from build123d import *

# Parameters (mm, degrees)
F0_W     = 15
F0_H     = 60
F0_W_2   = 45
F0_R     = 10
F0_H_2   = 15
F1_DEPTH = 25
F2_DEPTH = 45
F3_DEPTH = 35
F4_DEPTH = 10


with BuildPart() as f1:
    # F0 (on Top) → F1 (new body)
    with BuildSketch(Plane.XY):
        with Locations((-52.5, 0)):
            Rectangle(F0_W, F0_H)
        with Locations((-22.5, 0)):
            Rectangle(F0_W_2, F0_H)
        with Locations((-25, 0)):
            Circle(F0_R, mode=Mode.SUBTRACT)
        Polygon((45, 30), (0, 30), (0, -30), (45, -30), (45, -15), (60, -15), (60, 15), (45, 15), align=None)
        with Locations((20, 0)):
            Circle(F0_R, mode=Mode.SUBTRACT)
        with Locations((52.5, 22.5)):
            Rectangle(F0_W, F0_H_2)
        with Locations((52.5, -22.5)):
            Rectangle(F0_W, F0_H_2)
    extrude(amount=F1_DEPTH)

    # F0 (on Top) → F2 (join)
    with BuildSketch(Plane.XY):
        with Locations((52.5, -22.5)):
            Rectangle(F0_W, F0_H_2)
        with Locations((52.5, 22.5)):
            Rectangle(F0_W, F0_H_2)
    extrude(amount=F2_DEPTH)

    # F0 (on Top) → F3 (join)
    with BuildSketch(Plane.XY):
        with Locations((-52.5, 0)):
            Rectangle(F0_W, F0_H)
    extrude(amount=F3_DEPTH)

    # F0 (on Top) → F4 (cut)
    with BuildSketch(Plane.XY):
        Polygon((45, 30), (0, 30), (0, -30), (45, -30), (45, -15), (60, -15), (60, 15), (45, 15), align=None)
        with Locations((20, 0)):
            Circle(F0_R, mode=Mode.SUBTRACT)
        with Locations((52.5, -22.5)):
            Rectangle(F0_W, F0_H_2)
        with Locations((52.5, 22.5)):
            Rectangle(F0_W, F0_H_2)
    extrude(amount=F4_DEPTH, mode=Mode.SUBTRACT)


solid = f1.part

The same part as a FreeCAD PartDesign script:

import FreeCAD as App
import Part
import Sketcher


def add_polygon(sketch, points):
    """Adds a closed chain of lines whose ends are joined by coincident constraints."""
    first, n = sketch.GeometryCount, len(points)
    for a, b in zip(points, points[1:] + points[:1]):
        sketch.addGeometry(Part.LineSegment(App.Vector(*a, 0), App.Vector(*b, 0)), False)
    for i in range(n):
        sketch.addConstraint(Sketcher.Constraint("Coincident", first + i, 2, first + (i + 1) % n, 1))

doc = App.newDocument("Part")
params = doc.addObject("Spreadsheet::Sheet", "Params")
for row, (alias, value) in enumerate([
    ("sketch1_diameter", "20 mm"),
    ("sketch1_width", "120 mm"),
    ("sketch1_height", "60 mm"),
    ("pad1_length", "25 mm"),
    ("sketch2_width", "15 mm"),
    ("pad2_length", "45 mm"),
    ("sketch3_width", "15 mm"),
    ("sketch3_height", "60 mm"),
    ("pad3_length", "35 mm"),
    ("sketch4_diameter", "20 mm"),
    ("sketch4_width", "60 mm"),
    ("pocket1_length", "10 mm"),
], start=1):
    params.set(f"A{row}", alias)
    params.set(f"B{row}", "=" + value)
    params.setAlias(f"B{row}", alias)

body = doc.addObject("PartDesign::Body", "Body")

# Sketch on XY plane
sketch1 = body.newObject("Sketcher::SketchObject", "Sketch")
sketch1.AttachmentSupport = (doc.getObject("XY_Plane"), [""])
sketch1.MapMode = "FlatFace"
add_polygon(sketch1, [(-60, 30), (-60, -30), (60, -30), (60, 30)])  # lines 0-3
sketch1.addGeometry(Part.Circle(App.Vector(-25, 0, 0), App.Vector(0, 0, 1), 10), False)  # 4
sketch1.addGeometry(Part.Circle(App.Vector(20, 0, 0), App.Vector(0, 0, 1), 10), False)  # 5
sketch1.addConstraint(Sketcher.Constraint("Vertical", 0))
sketch1.addConstraint(Sketcher.Constraint("Horizontal", 1))
sketch1.addConstraint(Sketcher.Constraint("Vertical", 2))
sketch1.addConstraint(Sketcher.Constraint("Horizontal", 3))
sketch1.addConstraint(Sketcher.Constraint("Equal", 4, 5))
sketch1.addConstraint(Sketcher.Constraint("Symmetric", 0, 2, 2, 2, -1, 1))
sketch1.addConstraint(Sketcher.Constraint("PointOnObject", 4, 3, -1))
sketch1.addConstraint(Sketcher.Constraint("PointOnObject", 5, 3, -1))
sketch1.addConstraint(Sketcher.Constraint("Diameter", 4, 20.0))
sketch1.addConstraint(Sketcher.Constraint("DistanceX", 1, 1, 1, 2, 120.0))
sketch1.addConstraint(Sketcher.Constraint("DistanceY", 0, 2, 0, 1, 60.0))
sketch1.addConstraint(Sketcher.Constraint("DistanceX", 4, 3, -1, 1, 25.0))
sketch1.addConstraint(Sketcher.Constraint("DistanceX", -1, 1, 5, 3, 20.0))
sketch1.setExpression("Constraints[12]", "Params.sketch1_diameter")
sketch1.setExpression("Constraints[13]", "Params.sketch1_width")
sketch1.setExpression("Constraints[14]", "Params.sketch1_height")
pad1 = body.newObject("PartDesign::Pad", "Pad")
pad1.Profile = sketch1
pad1.setExpression("Length", "Params.pad1_length")

# Sketch on XY plane
sketch2 = body.newObject("Sketcher::SketchObject", "Sketch001")
sketch2.AttachmentSupport = (doc.getObject("XY_Plane"), [""])
sketch2.MapMode = "FlatFace"
add_polygon(sketch2, [(45, -15), (45, -30), (60, -30), (60, -15)])  # lines 0-3
add_polygon(sketch2, [(45, 30), (45, 15), (60, 15), (60, 30)])  # lines 4-7
sketch2.addConstraint(Sketcher.Constraint("Vertical", 0))
sketch2.addConstraint(Sketcher.Constraint("Horizontal", 1))
sketch2.addConstraint(Sketcher.Constraint("Vertical", 2))
sketch2.addConstraint(Sketcher.Constraint("Horizontal", 3))
sketch2.addConstraint(Sketcher.Constraint("Vertical", 4))
sketch2.addConstraint(Sketcher.Constraint("Horizontal", 5))
sketch2.addConstraint(Sketcher.Constraint("Vertical", 6))
sketch2.addConstraint(Sketcher.Constraint("Horizontal", 7))
sketch2.addConstraint(Sketcher.Constraint("Symmetric", 3, 2, 4, 2, -1))
sketch2.addConstraint(Sketcher.Constraint("Symmetric", 1, 2, 6, 2, -1))
sketch2.addConstraint(Sketcher.Constraint("Equal", 7, 0))
sketch2.addConstraint(Sketcher.Constraint("DistanceX", 1, 1, 1, 2, 15.0))
sketch2.addConstraint(Sketcher.Constraint("DistanceX", -1, 1, 0, 2, 45.0))
sketch2.addConstraint(Sketcher.Constraint("DistanceY", 0, 2, -1, 1, 30.0))
sketch2.setExpression("Constraints[19]", "Params.sketch2_width")
pad2 = body.newObject("PartDesign::Pad", "Pad001")
pad2.Profile = sketch2
pad2.setExpression("Length", "Params.pad2_length")

# Sketch on XY plane
sketch3 = body.newObject("Sketcher::SketchObject", "Sketch002")
sketch3.AttachmentSupport = (doc.getObject("XY_Plane"), [""])
sketch3.MapMode = "FlatFace"
add_polygon(sketch3, [(-60, 30), (-60, -30), (-45, -30), (-45, 30)])  # lines 0-3
sketch3.addConstraint(Sketcher.Constraint("Vertical", 0))
sketch3.addConstraint(Sketcher.Constraint("Horizontal", 1))
sketch3.addConstraint(Sketcher.Constraint("Vertical", 2))
sketch3.addConstraint(Sketcher.Constraint("Horizontal", 3))
sketch3.addConstraint(Sketcher.Constraint("DistanceX", 1, 1, 1, 2, 15.0))
sketch3.addConstraint(Sketcher.Constraint("DistanceY", 0, 2, 0, 1, 60.0))
sketch3.addConstraint(Sketcher.Constraint("DistanceX", 0, 2, -1, 1, 60.0))
sketch3.addConstraint(Sketcher.Constraint("DistanceY", 0, 2, -1, 1, 30.0))
sketch3.setExpression("Constraints[8]", "Params.sketch3_width")
sketch3.setExpression("Constraints[9]", "Params.sketch3_height")
pad3 = body.newObject("PartDesign::Pad", "Pad002")
pad3.Profile = sketch3
pad3.setExpression("Length", "Params.pad3_length")

# Sketch on XY plane
sketch4 = body.newObject("Sketcher::SketchObject", "Sketch003")
sketch4.AttachmentSupport = (doc.getObject("XY_Plane"), [""])
sketch4.MapMode = "FlatFace"
add_polygon(sketch4, [(0, 30), (0, -30), (60, -30), (60, 30)])  # lines 0-3
sketch4.addGeometry(Part.Circle(App.Vector(20, 0, 0), App.Vector(0, 0, 1), 10), False)  # 4
sketch4.addConstraint(Sketcher.Constraint("Vertical", 0))
sketch4.addConstraint(Sketcher.Constraint("Horizontal", 1))
sketch4.addConstraint(Sketcher.Constraint("Vertical", 2))
sketch4.addConstraint(Sketcher.Constraint("Horizontal", 3))
sketch4.addConstraint(Sketcher.Constraint("Symmetric", 0, 2, 3, 2, -1, 1))
sketch4.addConstraint(Sketcher.Constraint("PointOnObject", 4, 3, -1))
sketch4.addConstraint(Sketcher.Constraint("Equal", 3, 0))
sketch4.addConstraint(Sketcher.Constraint("Diameter", 4, 20.0))
sketch4.addConstraint(Sketcher.Constraint("DistanceX", 1, 1, 1, 2, 60.0))
sketch4.addConstraint(Sketcher.Constraint("DistanceX", -1, 1, 4, 3, 20.0))
sketch4.setExpression("Constraints[11]", "Params.sketch4_diameter")
sketch4.setExpression("Constraints[12]", "Params.sketch4_width")
pocket1 = body.newObject("PartDesign::Pocket", "Pocket")
pocket1.Profile = sketch4
pocket1.setExpression("Length", "Params.pocket1_length")
pocket1.Reversed = True

doc.recompute()
